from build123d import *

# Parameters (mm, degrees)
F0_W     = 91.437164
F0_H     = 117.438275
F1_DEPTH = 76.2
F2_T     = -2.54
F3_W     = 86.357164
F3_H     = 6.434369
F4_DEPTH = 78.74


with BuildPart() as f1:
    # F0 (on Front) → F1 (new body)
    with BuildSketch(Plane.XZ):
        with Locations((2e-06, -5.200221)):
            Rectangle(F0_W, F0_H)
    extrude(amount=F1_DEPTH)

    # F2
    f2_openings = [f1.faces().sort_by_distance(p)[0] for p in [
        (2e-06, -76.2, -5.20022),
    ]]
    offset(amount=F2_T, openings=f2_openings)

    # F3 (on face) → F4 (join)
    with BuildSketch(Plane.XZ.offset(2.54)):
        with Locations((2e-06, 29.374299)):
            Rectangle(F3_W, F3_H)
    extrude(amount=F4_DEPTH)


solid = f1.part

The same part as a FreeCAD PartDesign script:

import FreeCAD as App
import Part
import Sketcher
from FreeCAD import Vector


def faces_at(feature, points):
    """Names of the faces that lie closest to the given points."""
    faces = feature.Shape.Faces
    near = lambda p: min(range(len(faces)), key=lambda i: faces[i].distToShape(Part.Vertex(*p))[0])
    return sorted({f"Face{near(p) + 1}" for p in points})

doc = App.newDocument("Part")
params = doc.addObject("Spreadsheet::Sheet", "Params")
for row, (alias, value) in enumerate([
    ("pad1_length", "3 in"),
    ("thickness_wall", "0.1 in"),
    ("pad2_length", "3.1 in"),
], start=1):
    params.set(f"A{row}", alias)
    params.set(f"B{row}", "=" + value)
    params.setAlias(f"B{row}", alias)

body = doc.addObject("PartDesign::Body", "Body")

sketch1 = body.newObject("Sketcher::SketchObject", "Sketch")
sketch1.AttachmentSupport = (doc.getObject("XZ_Plane"), [""])
sketch1.MapMode = "FlatFace"
sketch1.addGeometry(Part.LineSegment(Vector(-46, 54, 0), Vector(-46, -64, 0)), False)
sketch1.addGeometry(Part.LineSegment(Vector(-46, -64, 0), Vector(46, -64, 0)), False)
sketch1.addGeometry(Part.LineSegment(Vector(46, -64, 0), Vector(46, 54, 0)), False)
sketch1.addGeometry(Part.LineSegment(Vector(46, 54, 0), Vector(-46, 54, 0)), False)
sketch1.addConstraint(Sketcher.Constraint("Coincident", 0, 2, 1, 1))
sketch1.addConstraint(Sketcher.Constraint("Coincident", 1, 2, 2, 1))
sketch1.addConstraint(Sketcher.Constraint("Coincident", 2, 2, 3, 1))
sketch1.addConstraint(Sketcher.Constraint("Coincident", 3, 2, 0, 1))
sketch1.addConstraint(Sketcher.Constraint("Vertical", 0))
sketch1.addConstraint(Sketcher.Constraint("Horizontal", 1))
sketch1.addConstraint(Sketcher.Constraint("Vertical", 2))
sketch1.addConstraint(Sketcher.Constraint("Horizontal", 3))
sketch1.addConstraint(Sketcher.Constraint("DistanceX", 1, 1, 1, 2, 91.437164))
sketch1.addConstraint(Sketcher.Constraint("DistanceY", 0, 2, 0, 1, 117.438275))
sketch1.addConstraint(Sketcher.Constraint("DistanceX", 0, 2, -1, 1, 45.71858))
sketch1.addConstraint(Sketcher.Constraint("DistanceY", 0, 2, -1, 1, 63.919359))
pad1 = body.newObject("PartDesign::Pad", "Pad")
pad1.Profile = sketch1
pad1.setExpression("Length", "Params.pad1_length")
doc.recompute()

thickness = body.newObject("PartDesign::Thickness", "Thickness")
thickness.Base = (pad1, faces_at(pad1, [(0, -76.2, -5.2)]))
thickness.setExpression("Value", "Params.thickness_wall")
thickness.Reversed = True
thickness.Join = "Arc"

sketch2 = body.newObject("Sketcher::SketchObject", "Sketch001")
sketch2.AttachmentSupport = (doc.getObject("XZ_Plane"), [""])
sketch2.MapMode = "FlatFace"
sketch2.AttachmentOffset = App.Placement(Vector(0, 0, 0.1 * 25.4), App.Rotation())
sketch2.addGeometry(Part.LineSegment(Vector(-43, 33, 0), Vector(-43, 26, 0)), False)
sketch2.addGeometry(Part.LineSegment(Vector(-43, 26, 0), Vector(43, 26, 0)), False)
sketch2.addGeometry(Part.LineSegment(Vector(43, 26, 0), Vector(43, 33, 0)), False)
sketch2.addGeometry(Part.LineSegment(Vector(43, 33, 0), Vector(-43, 33, 0)), False)
sketch2.addConstraint(Sketcher.Constraint("Coincident", 0, 2, 1, 1))
sketch2.addConstraint(Sketcher.Constraint("Coincident", 1, 2, 2, 1))
sketch2.addConstraint(Sketcher.Constraint("Coincident", 2, 2, 3, 1))
sketch2.addConstraint(Sketcher.Constraint("Coincident", 3, 2, 0, 1))
sketch2.addConstraint(Sketcher.Constraint("Vertical", 0))
sketch2.addConstraint(Sketcher.Constraint("Horizontal", 1))
sketch2.addConstraint(Sketcher.Constraint("Vertical", 2))
sketch2.addConstraint(Sketcher.Constraint("Horizontal", 3))
sketch2.addConstraint(Sketcher.Constraint("DistanceY", 0, 2, 0, 1, 6.434369))
sketch2.addConstraint(Sketcher.Constraint("DistanceX", 1, 1, 1, 2, 86.357164))
sketch2.addConstraint(Sketcher.Constraint("DistanceX", 0, 2, -1, 1, 43.17858))
sketch2.addConstraint(Sketcher.Constraint("DistanceY", -1, 1, 0, 2, 26.157114))
pad2 = body.newObject("PartDesign::Pad", "Pad001")
pad2.Profile = sketch2
pad2.setExpression("Length", "Params.pad2_length")

doc.recompute()
